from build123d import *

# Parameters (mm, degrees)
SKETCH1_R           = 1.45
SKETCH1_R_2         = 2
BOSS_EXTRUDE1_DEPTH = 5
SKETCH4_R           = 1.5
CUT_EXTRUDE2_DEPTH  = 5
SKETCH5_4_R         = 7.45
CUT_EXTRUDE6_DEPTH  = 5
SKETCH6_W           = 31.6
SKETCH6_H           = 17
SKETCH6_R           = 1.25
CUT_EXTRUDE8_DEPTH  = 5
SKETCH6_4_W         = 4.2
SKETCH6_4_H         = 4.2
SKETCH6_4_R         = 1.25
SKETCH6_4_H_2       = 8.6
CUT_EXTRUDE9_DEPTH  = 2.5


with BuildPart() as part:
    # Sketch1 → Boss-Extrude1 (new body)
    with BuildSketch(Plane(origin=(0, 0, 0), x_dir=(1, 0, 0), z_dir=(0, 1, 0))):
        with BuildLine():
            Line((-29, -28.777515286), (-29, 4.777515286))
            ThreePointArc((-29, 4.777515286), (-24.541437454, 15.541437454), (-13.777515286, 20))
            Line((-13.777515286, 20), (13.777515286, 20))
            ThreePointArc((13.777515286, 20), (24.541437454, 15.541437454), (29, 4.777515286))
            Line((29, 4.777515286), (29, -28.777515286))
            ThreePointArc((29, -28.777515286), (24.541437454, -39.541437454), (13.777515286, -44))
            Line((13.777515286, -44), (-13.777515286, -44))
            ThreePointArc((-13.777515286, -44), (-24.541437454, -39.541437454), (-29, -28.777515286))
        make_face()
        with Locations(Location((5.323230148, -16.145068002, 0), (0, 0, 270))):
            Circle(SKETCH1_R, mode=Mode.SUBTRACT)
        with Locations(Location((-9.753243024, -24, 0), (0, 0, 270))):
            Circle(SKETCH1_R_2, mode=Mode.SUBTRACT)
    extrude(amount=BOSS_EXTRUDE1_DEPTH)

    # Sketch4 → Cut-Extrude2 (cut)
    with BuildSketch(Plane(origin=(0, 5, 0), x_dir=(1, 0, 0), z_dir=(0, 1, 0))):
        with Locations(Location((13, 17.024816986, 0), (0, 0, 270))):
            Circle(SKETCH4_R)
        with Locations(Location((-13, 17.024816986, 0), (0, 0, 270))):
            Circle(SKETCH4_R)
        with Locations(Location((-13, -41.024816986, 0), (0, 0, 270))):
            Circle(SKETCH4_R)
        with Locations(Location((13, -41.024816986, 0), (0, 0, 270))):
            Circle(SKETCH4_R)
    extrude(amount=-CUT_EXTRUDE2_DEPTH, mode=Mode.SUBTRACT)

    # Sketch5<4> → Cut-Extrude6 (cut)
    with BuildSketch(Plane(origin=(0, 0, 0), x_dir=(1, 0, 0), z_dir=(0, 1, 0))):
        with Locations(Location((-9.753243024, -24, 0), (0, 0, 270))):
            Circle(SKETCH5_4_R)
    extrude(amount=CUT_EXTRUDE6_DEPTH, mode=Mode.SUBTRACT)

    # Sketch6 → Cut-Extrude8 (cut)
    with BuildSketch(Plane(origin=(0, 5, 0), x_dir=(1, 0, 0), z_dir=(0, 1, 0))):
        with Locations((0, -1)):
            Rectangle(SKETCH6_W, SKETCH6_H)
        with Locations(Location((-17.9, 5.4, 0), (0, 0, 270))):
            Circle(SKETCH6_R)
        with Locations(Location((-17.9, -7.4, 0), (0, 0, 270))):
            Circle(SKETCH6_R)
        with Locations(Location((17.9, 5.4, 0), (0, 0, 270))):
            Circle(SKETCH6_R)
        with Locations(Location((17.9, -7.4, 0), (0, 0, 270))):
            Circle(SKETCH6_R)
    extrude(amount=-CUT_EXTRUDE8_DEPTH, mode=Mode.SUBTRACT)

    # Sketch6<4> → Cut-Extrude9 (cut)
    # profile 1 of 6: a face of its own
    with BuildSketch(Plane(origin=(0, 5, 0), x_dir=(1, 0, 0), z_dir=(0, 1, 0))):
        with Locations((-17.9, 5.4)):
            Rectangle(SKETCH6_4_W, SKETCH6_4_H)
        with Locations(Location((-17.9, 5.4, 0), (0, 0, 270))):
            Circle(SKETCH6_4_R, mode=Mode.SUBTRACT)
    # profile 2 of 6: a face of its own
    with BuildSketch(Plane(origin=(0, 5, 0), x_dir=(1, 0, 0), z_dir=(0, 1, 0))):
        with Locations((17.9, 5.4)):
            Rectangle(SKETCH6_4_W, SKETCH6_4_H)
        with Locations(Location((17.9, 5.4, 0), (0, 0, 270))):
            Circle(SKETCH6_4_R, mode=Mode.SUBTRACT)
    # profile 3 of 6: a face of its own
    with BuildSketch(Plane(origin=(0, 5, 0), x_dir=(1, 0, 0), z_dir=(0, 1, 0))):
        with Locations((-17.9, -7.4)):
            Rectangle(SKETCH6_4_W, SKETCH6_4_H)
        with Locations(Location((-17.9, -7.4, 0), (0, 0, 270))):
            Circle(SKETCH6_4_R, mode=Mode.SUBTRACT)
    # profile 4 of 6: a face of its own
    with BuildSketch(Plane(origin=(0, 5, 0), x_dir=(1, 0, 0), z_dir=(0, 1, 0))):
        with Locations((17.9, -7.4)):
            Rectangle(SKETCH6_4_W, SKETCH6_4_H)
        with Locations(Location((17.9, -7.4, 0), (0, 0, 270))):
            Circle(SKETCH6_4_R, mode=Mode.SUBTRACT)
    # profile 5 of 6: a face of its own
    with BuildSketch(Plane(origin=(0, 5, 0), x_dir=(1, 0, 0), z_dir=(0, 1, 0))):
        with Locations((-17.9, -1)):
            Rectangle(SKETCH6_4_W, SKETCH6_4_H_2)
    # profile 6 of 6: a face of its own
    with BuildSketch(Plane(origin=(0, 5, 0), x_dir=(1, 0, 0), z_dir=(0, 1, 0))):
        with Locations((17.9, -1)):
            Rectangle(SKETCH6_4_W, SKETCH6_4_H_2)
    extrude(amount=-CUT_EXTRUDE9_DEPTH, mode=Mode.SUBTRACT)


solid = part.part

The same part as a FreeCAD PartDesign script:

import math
import FreeCAD as App
import Part
import Sketcher


def add_polygon(sketch, points):
    """Adds a closed chain of lines whose ends are joined by coincident constraints."""
    first, n = sketch.GeometryCount, len(points)
    for a, b in zip(points, points[1:] + points[:1]):
        sketch.addGeometry(Part.LineSegment(App.Vector(*a, 0), App.Vector(*b, 0)), False)
    for i in range(n):
        sketch.addConstraint(Sketcher.Constraint("Coincident", first + i, 2, first + (i + 1) % n, 1))

doc = App.newDocument("Part")
body = doc.addObject("PartDesign::Body", "Body")

# Sketch on XZ plane
sketch1 = doc.addObject("Sketcher::SketchObject", "Sketch")
body.addObject(sketch1)
sketch1.AttachmentSupport = (doc.XZ_Plane, [""])
sketch1.MapMode = "FlatFace"
sketch1.addGeometry(Part.LineSegment(App.Vector(-29, -4.777515, 0), App.Vector(-29, 28.777515, 0)), False)
sketch1.addGeometry(Part.ArcOfCircle(Part.Circle(App.Vector(-13.777515, 28.777515, 0), App.Vector(0, 0, 1), 15.222485), math.radians(90), math.radians(180)), False)
sketch1.addGeometry(Part.LineSegment(App.Vector(-13.777515, 44, 0), App.Vector(13.777515, 44, 0)), False)
sketch1.addGeometry(Part.ArcOfCircle(Part.Circle(App.Vector(13.777515, 28.777515, 0), App.Vector(0, 0, 1), 15.222485), math.radians(0), math.radians(90)), False)
sketch1.addGeometry(Part.LineSegment(App.Vector(29, 28.777515, 0), App.Vector(29, -4.777515, 0)), False)
sketch1.addGeometry(Part.ArcOfCircle(Part.Circle(App.Vector(13.777515, -4.777515, 0), App.Vector(0, 0, 1), 15.222485), math.radians(-90), math.radians(0)), False)
sketch1.addGeometry(Part.LineSegment(App.Vector(13.777515, -20, 0), App.Vector(-13.777515, -20, 0)), False)
sketch1.addGeometry(Part.ArcOfCircle(Part.Circle(App.Vector(-13.777515, -4.777515, 0), App.Vector(0, 0, 1), 15.222485), math.radians(180), math.radians(270)), False)
sketch1.addGeometry(Part.Circle(App.Vector(-9.753243, 24, 0), App.Vector(0, 0, 1), 2), False)
sketch1.addGeometry(Part.Circle(App.Vector(5.32323, 16.145068, 0), App.Vector(0, 0, 1), 1.45), False)
sketch1.addConstraint(Sketcher.Constraint("Tangent", 0, 2, 1, 2))
sketch1.addConstraint(Sketcher.Constraint("Tangent", 1, 1, 2, 1))
sketch1.addConstraint(Sketcher.Constraint("Tangent", 2, 2, 3, 2))
sketch1.addConstraint(Sketcher.Constraint("Tangent", 3, 1, 4, 1))
sketch1.addConstraint(Sketcher.Constraint("Tangent", 4, 2, 5, 2))
sketch1.addConstraint(Sketcher.Constraint("Tangent", 5, 1, 6, 1))
sketch1.addConstraint(Sketcher.Constraint("Tangent", 6, 2, 7, 2))
sketch1.addConstraint(Sketcher.Constraint("Tangent", 7, 1, 0, 1))
sketch1.addConstraint(Sketcher.Constraint("Vertical", 0))
sketch1.addConstraint(Sketcher.Constraint("Horizontal", 2))
sketch1.addConstraint(Sketcher.Constraint("Vertical", 4))
sketch1.addConstraint(Sketcher.Constraint("Horizontal", 6))
sketch1.addConstraint(Sketcher.Constraint("Equal", 1, 3))
sketch1.addConstraint(Sketcher.Constraint("Equal", 3, 5))
sketch1.addConstraint(Sketcher.Constraint("Equal", 5, 7))
sketch1.addConstraint(Sketcher.Constraint("Diameter", 8, 4.0))
sketch1.addConstraint(Sketcher.Constraint("Diameter", 9, 2.9))
sketch1.addConstraint(Sketcher.Constraint("DistanceY", -1, 1, 8, 3, 24.0))
sketch1.addConstraint(Sketcher.Constraint("DistanceX", 0, 2, -1, 1, 29.0))
sketch1.addConstraint(Sketcher.Constraint("DistanceY", -1, 1, 1, 1, 44.0))
sketch1.addConstraint(Sketcher.Constraint("DistanceX", -1, 1, 3, 1, 29.0))
sketch1.addConstraint(Sketcher.Constraint("DistanceY", 5, 1, -1, 1, 20.0))
sketch1.addConstraint(Sketcher.Constraint("Radius", 1, 15.222485))
sketch1.addConstraint(Sketcher.Constraint("DistanceX", -1, 1, 9, 3, 5.32323))
sketch1.addConstraint(Sketcher.Constraint("DistanceY", -1, 1, 9, 3, 16.145068))
sketch1.addConstraint(Sketcher.Constraint("DistanceX", 8, 3, 3, 3, 23.530758))
pad1 = doc.addObject("PartDesign::Pad", "Pad")
body.addObject(pad1)
pad1.Profile = sketch1
pad1.Length = 5
pad1.Reversed = True

# Sketch on XZ plane
sketch2 = doc.addObject("Sketcher::SketchObject", "Sketch001")
body.addObject(sketch2)
sketch2.AttachmentSupport = (doc.XZ_Plane, [""])
sketch2.MapMode = "FlatFace"
sketch2.AttachmentOffset = App.Placement(App.Vector(0, 0, -5), App.Rotation())
sketch2.addGeometry(Part.Circle(App.Vector(13, -17.024817, 0), App.Vector(0, 0, 1), 1.5), False)
sketch2.addGeometry(Part.Circle(App.Vector(-13, -17.024817, 0), App.Vector(0, 0, 1), 1.5), False)
sketch2.addGeometry(Part.Circle(App.Vector(-13, 41.024817, 0), App.Vector(0, 0, 1), 1.5), False)
sketch2.addGeometry(Part.Circle(App.Vector(13, 41.024817, 0), App.Vector(0, 0, 1), 1.5), False)
sketch2.addConstraint(Sketcher.Constraint("Equal", 0, 1))
sketch2.addConstraint(Sketcher.Constraint("Equal", 1, 2))
sketch2.addConstraint(Sketcher.Constraint("Equal", 2, 3))
sketch2.addConstraint(Sketcher.Constraint("Symmetric", 0, 3, 1, 3, -2))
sketch2.addConstraint(Sketcher.Constraint("Symmetric", 2, 3, 3, 3, -2))
sketch2.addConstraint(Sketcher.Constraint("Vertical", 1, 3, 2, 3))
sketch2.addConstraint(Sketcher.Constraint("Diameter", 0, 3.0))
sketch2.addConstraint(Sketcher.Constraint("DistanceX", -1, 1, 0, 3, 13.0))
sketch2.addConstraint(Sketcher.Constraint("DistanceY", 0, 3, -1, 1, 17.024817))
sketch2.addConstraint(Sketcher.Constraint("DistanceY", -1, 1, 2, 3, 41.024817))
pocket1 = doc.addObject("PartDesign::Pocket", "Pocket")
body.addObject(pocket1)
pocket1.Profile = sketch2
pocket1.Length = 5
pocket1.Reversed = True

# Sketch on XZ plane
sketch3 = doc.addObject("Sketcher::SketchObject", "Sketch002")
body.addObject(sketch3)
sketch3.AttachmentSupport = (doc.XZ_Plane, [""])
sketch3.MapMode = "FlatFace"
sketch3.addGeometry(Part.Circle(App.Vector(-9.753243, 24, 0), App.Vector(0, 0, 1), 7.45), False)
sketch3.addConstraint(Sketcher.Constraint("Diameter", 0, 14.9))
sketch3.addConstraint(Sketcher.Constraint("DistanceY", -1, 1, 0, 3, 24.0))
sketch3.addConstraint(Sketcher.Constraint("DistanceX", 0, 3, -1, 1, 9.753243))
pocket2 = doc.addObject("PartDesign::Pocket", "Pocket001")
body.addObject(pocket2)
pocket2.Profile = sketch3
pocket2.Length = 5

# Sketch on XZ plane
sketch4 = doc.addObject("Sketcher::SketchObject", "Sketch003")
body.addObject(sketch4)
sketch4.AttachmentSupport = (doc.XZ_Plane, [""])
sketch4.MapMode = "FlatFace"
sketch4.AttachmentOffset = App.Placement(App.Vector(0, 0, -5), App.Rotation())
add_polygon(sketch4, [(-15.8, -7.5), (-15.8, 9.5), (15.8, 9.5), (15.8, -7.5)])  # lines 0-3
sketch4.addGeometry(Part.Circle(App.Vector(-17.9, -5.4, 0), App.Vector(0, 0, 1), 1.25), False)  # 4
sketch4.addGeometry(Part.Circle(App.Vector(-17.9, 7.4, 0), App.Vector(0, 0, 1), 1.25), False)  # 5
sketch4.addGeometry(Part.Circle(App.Vector(17.9, -5.4, 0), App.Vector(0, 0, 1), 1.25), False)  # 6
sketch4.addGeometry(Part.Circle(App.Vector(17.9, 7.4, 0), App.Vector(0, 0, 1), 1.25), False)  # 7
sketch4.addConstraint(Sketcher.Constraint("Vertical", 0))
sketch4.addConstraint(Sketcher.Constraint("Horizontal", 1))
sketch4.addConstraint(Sketcher.Constraint("Vertical", 2))
sketch4.addConstraint(Sketcher.Constraint("Horizontal", 3))
sketch4.addConstraint(Sketcher.Constraint("Equal", 4, 5))
sketch4.addConstraint(Sketcher.Constraint("Equal", 5, 6))
sketch4.addConstraint(Sketcher.Constraint("Equal", 6, 7))
sketch4.addConstraint(Sketcher.Constraint("Symmetric", 4, 3, 6, 3, -2))
sketch4.addConstraint(Sketcher.Constraint("Symmetric", 5, 3, 7, 3, -2))
sketch4.addConstraint(Sketcher.Constraint("Vertical", 4, 3, 5, 3))
sketch4.addConstraint(Sketcher.Constraint("Diameter", 4, 2.5))
sketch4.addConstraint(Sketcher.Constraint("DistanceY", 0, 1, 0, 2, 17.0))
sketch4.addConstraint(Sketcher.Constraint("DistanceX", 1, 1, 1, 2, 31.6))
sketch4.addConstraint(Sketcher.Constraint("DistanceX", 4, 3, -1, 1, 17.9))
sketch4.addConstraint(Sketcher.Constraint("DistanceY", 4, 3, -1, 1, 5.4))
sketch4.addConstraint(Sketcher.Constraint("DistanceY", -1, 1, 5, 3, 7.4))
sketch4.addConstraint(Sketcher.Constraint("DistanceX", 0, 2, -1, 1, 15.8))
sketch4.addConstraint(Sketcher.Constraint("DistanceY", -1, 1, 0, 2, 9.5))
pocket3 = doc.addObject("PartDesign::Pocket", "Pocket002")
body.addObject(pocket3)
pocket3.Profile = sketch4
pocket3.Length = 5
pocket3.Reversed = True

# Sketch on XZ plane
sketch5 = doc.addObject("Sketcher::SketchObject", "Sketch004")
body.addObject(sketch5)
sketch5.AttachmentSupport = (doc.XZ_Plane, [""])
sketch5.MapMode = "FlatFace"
sketch5.AttachmentOffset = App.Placement(App.Vector(0, 0, -5), App.Rotation())
add_polygon(sketch5, [(-20, -7.5), (-20, 9.5), (-15.8, 9.5), (-15.8, -7.5)])  # lines 0-3
sketch5.addGeometry(Part.Circle(App.Vector(-17.9, -5.4, 0), App.Vector(0, 0, 1), 1.25), False)  # 4
sketch5.addGeometry(Part.Circle(App.Vector(-17.9, 7.4, 0), App.Vector(0, 0, 1), 1.25), False)  # 5
add_polygon(sketch5, [(15.8, -7.5), (15.8, 9.5), (20, 9.5), (20, -7.5)])  # lines 6-9
sketch5.addGeometry(Part.Circle(App.Vector(17.9, -5.4, 0), App.Vector(0, 0, 1), 1.25), False)  # 10
sketch5.addGeometry(Part.Circle(App.Vector(17.9, 7.4, 0), App.Vector(0, 0, 1), 1.25), False)  # 11
sketch5.addConstraint(Sketcher.Constraint("Vertical", 0))
sketch5.addConstraint(Sketcher.Constraint("Horizontal", 1))
sketch5.addConstraint(Sketcher.Constraint("Vertical", 2))
sketch5.addConstraint(Sketcher.Constraint("Horizontal", 3))
sketch5.addConstraint(Sketcher.Constraint("Vertical", 6))
sketch5.addConstraint(Sketcher.Constraint("Horizontal", 7))
sketch5.addConstraint(Sketcher.Constraint("Vertical", 8))
sketch5.addConstraint(Sketcher.Constraint("Horizontal", 9))
sketch5.addConstraint(Sketcher.Constraint("Equal", 4, 5))
sketch5.addConstraint(Sketcher.Constraint("Equal", 5, 10))
sketch5.addConstraint(Sketcher.Constraint("Equal", 10, 11))
sketch5.addConstraint(Sketcher.Constraint("Symmetric", 4, 3, 10, 3, -2))
sketch5.addConstraint(Sketcher.Constraint("Symmetric", 5, 3, 11, 3, -2))
sketch5.addConstraint(Sketcher.Constraint("Symmetric", 1, 2, 6, 2, -2))
sketch5.addConstraint(Sketcher.Constraint("Symmetric", 3, 2, 8, 2, -2))
sketch5.addConstraint(Sketcher.Constraint("Vertical", 4, 3, 5, 3))
sketch5.addConstraint(Sketcher.Constraint("Diameter", 4, 2.5))
sketch5.addConstraint(Sketcher.Constraint("DistanceY", 0, 1, 0, 2, 17.0))
sketch5.addConstraint(Sketcher.Constraint("DistanceX", 1, 1, 1, 2, 4.2))
sketch5.addConstraint(Sketcher.Constraint("DistanceX", 0, 2, -1, 1, 20.0))
sketch5.addConstraint(Sketcher.Constraint("DistanceX", 4, 3, -1, 1, 17.9))
sketch5.addConstraint(Sketcher.Constraint("DistanceY", 4, 3, -1, 1, 5.4))
sketch5.addConstraint(Sketcher.Constraint("DistanceY", -1, 1, 5, 3, 7.4))
sketch5.addConstraint(Sketcher.Constraint("DistanceY", -1, 1, 0, 2, 9.5))
pocket4 = doc.addObject("PartDesign::Pocket", "Pocket003")
body.addObject(pocket4)
pocket4.Profile = sketch5
pocket4.Length = 2.5
pocket4.Reversed = True

doc.recompute()
